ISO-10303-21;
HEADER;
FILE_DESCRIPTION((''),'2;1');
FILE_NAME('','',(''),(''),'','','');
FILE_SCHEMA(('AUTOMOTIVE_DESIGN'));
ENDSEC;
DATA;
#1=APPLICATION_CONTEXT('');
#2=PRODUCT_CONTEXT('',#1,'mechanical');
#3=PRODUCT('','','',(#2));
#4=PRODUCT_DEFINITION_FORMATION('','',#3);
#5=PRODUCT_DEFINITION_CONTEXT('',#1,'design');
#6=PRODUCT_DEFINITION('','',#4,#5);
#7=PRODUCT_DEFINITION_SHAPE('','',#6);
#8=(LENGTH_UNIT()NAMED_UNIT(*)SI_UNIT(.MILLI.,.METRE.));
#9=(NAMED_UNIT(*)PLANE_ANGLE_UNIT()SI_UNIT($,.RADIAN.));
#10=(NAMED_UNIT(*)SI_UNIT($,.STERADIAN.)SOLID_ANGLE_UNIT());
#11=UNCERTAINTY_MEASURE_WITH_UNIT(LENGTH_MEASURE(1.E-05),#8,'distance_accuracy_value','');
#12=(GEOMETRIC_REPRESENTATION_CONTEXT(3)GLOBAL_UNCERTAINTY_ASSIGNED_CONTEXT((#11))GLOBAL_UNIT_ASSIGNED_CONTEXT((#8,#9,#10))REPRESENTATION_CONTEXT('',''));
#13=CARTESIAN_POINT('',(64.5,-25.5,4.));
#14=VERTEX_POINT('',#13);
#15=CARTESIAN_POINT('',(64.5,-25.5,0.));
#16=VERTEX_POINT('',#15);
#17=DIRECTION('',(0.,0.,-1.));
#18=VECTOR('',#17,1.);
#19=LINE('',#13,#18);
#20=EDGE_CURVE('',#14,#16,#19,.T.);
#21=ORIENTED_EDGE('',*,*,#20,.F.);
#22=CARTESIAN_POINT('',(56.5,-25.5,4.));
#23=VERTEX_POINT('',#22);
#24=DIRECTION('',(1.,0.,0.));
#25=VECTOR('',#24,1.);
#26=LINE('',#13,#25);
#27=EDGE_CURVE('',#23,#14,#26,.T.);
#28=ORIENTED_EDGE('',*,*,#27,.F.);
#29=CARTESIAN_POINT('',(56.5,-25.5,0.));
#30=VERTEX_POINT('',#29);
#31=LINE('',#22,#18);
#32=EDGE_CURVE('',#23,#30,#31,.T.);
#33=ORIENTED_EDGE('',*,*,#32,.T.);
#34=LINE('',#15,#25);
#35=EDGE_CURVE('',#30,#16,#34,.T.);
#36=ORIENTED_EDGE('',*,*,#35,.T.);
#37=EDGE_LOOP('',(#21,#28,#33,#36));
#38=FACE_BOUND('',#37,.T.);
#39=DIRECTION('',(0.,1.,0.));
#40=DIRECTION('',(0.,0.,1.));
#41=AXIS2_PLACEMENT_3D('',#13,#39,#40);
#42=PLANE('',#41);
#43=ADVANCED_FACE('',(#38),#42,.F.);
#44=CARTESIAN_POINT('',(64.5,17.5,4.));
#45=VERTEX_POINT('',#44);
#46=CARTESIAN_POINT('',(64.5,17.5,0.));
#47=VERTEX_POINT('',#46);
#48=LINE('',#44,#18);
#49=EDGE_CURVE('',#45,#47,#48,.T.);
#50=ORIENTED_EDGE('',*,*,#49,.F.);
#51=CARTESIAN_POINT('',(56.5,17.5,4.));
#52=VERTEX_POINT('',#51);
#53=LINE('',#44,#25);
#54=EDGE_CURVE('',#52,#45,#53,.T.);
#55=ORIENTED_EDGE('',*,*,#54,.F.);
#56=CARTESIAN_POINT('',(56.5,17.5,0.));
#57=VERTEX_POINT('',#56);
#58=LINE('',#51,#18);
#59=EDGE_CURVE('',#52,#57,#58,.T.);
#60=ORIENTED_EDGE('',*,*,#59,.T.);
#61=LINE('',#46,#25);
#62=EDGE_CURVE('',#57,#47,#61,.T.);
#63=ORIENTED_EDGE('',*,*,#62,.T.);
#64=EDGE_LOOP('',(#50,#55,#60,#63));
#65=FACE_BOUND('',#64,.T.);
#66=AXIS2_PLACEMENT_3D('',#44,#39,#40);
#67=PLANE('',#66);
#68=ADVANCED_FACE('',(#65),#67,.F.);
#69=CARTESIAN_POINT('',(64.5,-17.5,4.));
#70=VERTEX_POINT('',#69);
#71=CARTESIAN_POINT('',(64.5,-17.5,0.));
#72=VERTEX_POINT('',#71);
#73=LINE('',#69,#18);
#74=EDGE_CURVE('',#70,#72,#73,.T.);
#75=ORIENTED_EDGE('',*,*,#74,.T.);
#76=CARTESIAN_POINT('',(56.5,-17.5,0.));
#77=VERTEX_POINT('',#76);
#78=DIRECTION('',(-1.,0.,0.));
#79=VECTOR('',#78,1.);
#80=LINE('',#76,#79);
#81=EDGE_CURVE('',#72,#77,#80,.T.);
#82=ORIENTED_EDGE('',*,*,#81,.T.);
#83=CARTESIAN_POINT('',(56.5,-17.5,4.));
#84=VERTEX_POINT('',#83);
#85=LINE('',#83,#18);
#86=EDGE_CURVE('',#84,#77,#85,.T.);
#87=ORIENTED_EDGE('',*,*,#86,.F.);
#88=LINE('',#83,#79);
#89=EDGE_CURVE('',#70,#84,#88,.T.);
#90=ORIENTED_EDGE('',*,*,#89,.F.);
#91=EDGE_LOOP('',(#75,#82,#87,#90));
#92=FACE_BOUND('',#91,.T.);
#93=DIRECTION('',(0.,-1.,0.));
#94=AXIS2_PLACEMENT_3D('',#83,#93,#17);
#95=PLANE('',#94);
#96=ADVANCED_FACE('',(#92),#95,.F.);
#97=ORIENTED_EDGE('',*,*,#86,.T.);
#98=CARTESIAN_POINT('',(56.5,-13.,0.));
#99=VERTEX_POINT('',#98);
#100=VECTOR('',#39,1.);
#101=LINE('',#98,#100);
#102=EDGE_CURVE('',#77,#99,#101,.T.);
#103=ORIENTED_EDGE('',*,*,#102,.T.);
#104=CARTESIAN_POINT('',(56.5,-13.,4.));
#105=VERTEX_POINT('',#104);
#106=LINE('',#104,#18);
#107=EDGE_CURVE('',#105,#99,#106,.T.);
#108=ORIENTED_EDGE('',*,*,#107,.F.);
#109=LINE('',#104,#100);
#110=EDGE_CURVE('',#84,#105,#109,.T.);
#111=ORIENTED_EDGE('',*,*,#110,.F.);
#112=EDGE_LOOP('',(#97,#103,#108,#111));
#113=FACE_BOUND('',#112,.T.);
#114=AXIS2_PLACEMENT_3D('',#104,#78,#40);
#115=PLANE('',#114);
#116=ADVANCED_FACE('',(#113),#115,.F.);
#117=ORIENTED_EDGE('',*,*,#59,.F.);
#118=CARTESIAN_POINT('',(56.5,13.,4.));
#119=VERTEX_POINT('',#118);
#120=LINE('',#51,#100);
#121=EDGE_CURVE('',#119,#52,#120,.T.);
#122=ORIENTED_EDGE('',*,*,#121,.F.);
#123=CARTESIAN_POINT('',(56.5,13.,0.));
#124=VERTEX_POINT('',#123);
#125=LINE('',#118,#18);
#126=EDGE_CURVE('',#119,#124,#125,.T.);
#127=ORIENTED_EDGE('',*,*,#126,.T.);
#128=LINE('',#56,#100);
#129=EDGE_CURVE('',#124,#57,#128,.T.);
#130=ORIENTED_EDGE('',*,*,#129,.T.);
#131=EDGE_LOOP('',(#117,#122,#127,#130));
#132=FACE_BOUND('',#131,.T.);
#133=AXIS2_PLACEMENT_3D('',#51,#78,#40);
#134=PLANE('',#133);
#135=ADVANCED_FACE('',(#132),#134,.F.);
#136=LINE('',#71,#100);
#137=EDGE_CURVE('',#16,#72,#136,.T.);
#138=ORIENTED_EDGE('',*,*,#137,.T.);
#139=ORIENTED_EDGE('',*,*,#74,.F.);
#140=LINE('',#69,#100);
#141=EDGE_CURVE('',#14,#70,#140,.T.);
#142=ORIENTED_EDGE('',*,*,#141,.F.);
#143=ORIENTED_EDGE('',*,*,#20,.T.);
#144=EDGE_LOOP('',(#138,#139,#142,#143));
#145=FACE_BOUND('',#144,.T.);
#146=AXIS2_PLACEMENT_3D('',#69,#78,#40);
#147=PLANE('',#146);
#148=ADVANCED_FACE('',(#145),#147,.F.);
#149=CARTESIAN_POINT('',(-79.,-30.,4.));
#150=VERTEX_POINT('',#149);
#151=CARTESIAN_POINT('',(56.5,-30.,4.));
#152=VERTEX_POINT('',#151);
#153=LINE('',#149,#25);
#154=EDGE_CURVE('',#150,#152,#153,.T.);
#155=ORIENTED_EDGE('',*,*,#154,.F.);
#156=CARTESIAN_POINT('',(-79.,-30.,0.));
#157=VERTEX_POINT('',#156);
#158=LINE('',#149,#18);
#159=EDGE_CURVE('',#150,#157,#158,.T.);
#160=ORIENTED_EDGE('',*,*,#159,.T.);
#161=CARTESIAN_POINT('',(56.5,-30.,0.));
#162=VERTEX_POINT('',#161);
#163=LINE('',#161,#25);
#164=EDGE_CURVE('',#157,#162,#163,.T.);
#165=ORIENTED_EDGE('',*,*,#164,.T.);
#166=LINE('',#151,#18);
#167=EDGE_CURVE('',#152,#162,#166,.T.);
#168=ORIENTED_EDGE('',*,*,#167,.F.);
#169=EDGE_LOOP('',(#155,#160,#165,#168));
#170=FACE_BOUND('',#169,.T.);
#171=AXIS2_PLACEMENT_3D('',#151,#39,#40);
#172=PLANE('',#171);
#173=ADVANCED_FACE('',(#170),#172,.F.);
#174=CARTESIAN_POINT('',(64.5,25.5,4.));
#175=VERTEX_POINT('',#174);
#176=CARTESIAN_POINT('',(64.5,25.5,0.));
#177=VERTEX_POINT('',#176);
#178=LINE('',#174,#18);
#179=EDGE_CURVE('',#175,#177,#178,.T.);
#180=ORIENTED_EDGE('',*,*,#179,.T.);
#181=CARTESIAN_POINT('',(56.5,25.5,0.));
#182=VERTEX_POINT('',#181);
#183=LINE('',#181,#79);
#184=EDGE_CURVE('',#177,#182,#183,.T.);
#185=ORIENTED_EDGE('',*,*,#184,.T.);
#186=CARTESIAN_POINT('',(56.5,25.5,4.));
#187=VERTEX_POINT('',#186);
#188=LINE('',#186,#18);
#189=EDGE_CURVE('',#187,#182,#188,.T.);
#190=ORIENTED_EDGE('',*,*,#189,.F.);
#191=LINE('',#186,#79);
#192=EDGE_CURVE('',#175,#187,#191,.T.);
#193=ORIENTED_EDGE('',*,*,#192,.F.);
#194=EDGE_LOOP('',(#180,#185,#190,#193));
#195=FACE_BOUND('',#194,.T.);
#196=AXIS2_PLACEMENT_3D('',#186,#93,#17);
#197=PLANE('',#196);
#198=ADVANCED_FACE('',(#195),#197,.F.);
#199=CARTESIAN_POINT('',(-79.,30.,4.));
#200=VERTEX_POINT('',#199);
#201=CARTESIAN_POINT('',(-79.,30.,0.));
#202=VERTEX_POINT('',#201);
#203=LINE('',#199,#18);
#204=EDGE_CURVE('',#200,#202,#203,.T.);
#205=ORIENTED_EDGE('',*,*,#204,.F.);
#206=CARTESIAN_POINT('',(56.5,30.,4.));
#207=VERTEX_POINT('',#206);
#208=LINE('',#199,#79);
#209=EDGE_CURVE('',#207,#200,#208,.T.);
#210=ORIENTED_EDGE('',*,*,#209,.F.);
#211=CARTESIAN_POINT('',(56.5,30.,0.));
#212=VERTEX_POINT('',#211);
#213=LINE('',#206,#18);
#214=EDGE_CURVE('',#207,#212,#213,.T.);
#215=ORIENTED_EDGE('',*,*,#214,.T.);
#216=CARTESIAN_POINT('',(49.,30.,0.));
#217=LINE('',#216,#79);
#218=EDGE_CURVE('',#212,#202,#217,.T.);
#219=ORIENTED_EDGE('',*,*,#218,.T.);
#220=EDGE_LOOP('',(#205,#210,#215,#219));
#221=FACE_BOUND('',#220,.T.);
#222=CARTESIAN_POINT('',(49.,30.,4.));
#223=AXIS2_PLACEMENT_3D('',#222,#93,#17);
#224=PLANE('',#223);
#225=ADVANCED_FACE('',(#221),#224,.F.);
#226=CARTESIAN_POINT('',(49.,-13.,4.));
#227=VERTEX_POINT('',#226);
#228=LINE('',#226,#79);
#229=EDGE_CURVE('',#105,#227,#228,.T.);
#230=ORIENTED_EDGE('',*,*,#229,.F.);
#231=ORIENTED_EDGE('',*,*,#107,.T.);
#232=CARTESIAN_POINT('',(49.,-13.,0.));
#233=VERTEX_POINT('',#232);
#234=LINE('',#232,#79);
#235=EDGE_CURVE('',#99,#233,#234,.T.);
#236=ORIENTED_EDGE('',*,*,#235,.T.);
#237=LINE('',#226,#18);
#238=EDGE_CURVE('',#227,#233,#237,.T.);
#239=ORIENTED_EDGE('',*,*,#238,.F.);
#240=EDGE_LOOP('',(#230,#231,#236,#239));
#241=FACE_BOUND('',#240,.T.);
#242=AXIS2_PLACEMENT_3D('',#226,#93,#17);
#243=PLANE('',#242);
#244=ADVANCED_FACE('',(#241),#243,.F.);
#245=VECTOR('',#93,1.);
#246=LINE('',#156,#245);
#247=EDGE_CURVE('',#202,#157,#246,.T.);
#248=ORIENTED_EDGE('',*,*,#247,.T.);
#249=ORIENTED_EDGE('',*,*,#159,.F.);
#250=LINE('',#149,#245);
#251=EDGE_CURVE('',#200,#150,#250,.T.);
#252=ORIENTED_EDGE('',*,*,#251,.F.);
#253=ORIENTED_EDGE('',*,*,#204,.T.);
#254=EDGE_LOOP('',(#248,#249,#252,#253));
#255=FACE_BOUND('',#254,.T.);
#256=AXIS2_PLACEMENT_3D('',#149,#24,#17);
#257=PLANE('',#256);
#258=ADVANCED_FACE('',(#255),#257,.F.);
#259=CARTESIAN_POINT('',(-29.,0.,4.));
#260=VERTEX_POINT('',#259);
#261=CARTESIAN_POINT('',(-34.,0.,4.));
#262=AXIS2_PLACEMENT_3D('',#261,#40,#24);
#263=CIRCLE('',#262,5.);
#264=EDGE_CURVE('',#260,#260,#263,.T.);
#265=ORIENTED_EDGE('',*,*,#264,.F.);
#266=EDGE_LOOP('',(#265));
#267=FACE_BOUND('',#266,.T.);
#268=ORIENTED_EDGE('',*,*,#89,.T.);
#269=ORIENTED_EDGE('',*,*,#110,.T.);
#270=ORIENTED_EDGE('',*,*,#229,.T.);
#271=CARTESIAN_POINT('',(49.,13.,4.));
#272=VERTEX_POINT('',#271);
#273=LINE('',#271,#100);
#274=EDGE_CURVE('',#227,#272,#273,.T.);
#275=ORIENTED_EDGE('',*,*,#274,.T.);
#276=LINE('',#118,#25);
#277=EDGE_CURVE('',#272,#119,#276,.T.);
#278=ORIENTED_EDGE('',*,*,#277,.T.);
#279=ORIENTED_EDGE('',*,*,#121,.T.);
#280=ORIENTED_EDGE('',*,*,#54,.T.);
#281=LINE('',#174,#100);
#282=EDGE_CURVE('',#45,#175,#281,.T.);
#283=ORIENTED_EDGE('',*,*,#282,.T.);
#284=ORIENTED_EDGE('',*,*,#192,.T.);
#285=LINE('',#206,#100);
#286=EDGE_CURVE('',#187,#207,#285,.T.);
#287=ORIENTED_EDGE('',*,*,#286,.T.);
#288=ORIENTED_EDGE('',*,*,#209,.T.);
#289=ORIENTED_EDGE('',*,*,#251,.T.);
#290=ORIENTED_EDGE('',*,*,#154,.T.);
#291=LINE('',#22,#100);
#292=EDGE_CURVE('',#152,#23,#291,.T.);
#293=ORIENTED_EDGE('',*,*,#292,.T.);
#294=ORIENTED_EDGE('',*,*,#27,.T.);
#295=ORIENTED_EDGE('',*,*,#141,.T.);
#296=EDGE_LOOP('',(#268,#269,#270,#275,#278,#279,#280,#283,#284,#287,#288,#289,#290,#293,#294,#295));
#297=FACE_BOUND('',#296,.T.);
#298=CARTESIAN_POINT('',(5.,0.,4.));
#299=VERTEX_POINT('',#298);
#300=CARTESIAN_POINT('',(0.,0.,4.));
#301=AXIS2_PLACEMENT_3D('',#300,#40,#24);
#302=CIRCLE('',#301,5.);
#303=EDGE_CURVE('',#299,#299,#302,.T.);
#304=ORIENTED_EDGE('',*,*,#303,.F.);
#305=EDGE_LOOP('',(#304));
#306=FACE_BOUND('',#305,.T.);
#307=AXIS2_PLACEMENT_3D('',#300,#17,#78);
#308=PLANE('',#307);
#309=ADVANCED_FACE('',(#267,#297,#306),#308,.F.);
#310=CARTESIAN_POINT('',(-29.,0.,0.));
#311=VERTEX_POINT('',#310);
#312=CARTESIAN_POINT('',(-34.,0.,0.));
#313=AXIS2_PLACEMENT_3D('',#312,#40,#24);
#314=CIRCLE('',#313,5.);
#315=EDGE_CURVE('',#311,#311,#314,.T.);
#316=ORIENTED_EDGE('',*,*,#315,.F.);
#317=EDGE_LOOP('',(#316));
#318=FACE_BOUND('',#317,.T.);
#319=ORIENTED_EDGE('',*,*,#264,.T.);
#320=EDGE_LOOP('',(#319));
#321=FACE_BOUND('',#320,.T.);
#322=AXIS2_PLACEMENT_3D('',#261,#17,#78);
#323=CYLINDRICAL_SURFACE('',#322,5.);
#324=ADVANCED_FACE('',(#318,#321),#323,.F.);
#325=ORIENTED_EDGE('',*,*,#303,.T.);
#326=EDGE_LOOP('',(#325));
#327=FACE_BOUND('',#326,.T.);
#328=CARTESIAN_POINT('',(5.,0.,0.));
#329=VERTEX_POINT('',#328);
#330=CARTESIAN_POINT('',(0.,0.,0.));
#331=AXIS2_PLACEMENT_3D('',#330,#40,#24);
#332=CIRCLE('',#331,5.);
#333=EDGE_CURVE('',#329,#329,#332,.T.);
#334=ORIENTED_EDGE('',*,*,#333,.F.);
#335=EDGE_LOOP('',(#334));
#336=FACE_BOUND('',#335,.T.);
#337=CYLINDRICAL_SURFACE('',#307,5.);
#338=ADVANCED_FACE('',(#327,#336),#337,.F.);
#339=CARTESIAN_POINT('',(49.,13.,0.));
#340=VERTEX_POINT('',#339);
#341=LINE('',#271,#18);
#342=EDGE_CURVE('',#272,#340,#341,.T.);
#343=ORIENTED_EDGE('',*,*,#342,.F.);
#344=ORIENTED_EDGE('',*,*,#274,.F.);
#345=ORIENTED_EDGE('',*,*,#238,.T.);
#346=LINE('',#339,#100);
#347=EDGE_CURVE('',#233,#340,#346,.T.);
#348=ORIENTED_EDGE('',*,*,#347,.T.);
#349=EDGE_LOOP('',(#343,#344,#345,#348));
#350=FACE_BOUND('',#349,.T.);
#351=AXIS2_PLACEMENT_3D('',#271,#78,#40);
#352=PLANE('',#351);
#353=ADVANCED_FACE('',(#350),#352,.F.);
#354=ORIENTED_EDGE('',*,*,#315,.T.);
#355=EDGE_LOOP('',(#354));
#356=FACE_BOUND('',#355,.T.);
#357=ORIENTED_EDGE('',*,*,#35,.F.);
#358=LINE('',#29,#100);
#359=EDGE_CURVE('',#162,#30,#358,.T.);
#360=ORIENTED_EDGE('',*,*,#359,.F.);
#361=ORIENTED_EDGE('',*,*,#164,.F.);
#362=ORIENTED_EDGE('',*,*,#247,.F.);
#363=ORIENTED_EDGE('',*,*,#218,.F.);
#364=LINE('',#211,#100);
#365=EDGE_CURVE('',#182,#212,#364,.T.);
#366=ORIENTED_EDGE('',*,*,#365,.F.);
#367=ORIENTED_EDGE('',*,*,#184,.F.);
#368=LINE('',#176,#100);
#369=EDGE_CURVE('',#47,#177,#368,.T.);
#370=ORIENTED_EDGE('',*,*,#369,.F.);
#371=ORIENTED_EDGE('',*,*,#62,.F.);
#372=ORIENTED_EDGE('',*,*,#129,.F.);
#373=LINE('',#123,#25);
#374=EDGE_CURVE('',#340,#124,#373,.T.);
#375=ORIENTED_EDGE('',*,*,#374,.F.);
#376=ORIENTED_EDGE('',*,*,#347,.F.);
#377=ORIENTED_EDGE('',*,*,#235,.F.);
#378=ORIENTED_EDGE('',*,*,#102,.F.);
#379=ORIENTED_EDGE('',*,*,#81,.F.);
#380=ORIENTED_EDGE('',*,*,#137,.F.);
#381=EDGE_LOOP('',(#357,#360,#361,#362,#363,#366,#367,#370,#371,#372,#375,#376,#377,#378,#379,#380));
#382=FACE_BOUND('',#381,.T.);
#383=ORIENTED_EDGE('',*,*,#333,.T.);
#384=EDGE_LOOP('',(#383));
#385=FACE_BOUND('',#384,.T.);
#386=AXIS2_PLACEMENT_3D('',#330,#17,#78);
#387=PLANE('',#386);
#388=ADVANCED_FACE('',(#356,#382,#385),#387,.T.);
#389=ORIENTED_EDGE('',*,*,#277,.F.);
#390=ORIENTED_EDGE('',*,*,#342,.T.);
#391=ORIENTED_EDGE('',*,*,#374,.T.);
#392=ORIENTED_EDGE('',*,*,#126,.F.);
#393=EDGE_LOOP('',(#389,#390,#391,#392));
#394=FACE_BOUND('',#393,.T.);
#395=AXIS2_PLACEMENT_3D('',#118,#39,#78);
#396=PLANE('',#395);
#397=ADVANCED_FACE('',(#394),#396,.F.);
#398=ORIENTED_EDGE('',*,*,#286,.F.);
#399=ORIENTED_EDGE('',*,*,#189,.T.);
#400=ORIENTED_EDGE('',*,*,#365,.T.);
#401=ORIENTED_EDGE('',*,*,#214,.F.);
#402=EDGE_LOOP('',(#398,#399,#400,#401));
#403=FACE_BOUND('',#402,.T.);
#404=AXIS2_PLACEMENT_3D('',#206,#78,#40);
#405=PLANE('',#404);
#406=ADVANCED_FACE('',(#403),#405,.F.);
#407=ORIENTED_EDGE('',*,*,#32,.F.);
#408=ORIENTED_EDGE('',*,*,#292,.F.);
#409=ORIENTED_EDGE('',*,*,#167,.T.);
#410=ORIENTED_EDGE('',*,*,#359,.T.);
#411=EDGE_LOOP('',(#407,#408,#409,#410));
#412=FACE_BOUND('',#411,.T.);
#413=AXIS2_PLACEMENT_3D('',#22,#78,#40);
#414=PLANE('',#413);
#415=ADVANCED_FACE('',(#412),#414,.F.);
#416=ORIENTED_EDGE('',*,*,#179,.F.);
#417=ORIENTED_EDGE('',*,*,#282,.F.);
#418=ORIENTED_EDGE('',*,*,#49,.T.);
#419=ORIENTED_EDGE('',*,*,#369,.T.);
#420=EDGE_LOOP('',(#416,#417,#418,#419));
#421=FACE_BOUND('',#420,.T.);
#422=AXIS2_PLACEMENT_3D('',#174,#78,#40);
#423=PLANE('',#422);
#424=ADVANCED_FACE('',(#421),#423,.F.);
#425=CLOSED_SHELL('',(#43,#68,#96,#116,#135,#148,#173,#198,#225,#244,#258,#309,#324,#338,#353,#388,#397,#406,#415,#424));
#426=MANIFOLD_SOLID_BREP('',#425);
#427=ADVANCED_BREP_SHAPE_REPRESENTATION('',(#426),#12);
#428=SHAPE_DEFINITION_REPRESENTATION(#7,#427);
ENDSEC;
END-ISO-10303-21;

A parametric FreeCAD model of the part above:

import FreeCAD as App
import Part
import Sketcher
from FreeCAD import Vector

doc = App.newDocument("Part")
body = doc.addObject("PartDesign::Body", "Body")

sketch1 = body.newObject("Sketcher::SketchObject", "Sketch")
sketch1.AttachmentSupport = (doc.getObject("XY_Plane"), [""])
sketch1.MapMode = "FlatFace"
sketch1.addGeometry([
    Part.LineSegment(Vector(56.5, 30, 0), Vector(-79, 30, 0)),
    Part.LineSegment(Vector(-79, 30, 0), Vector(-79, -30, 0)),
    Part.LineSegment(Vector(-79, -30, 0), Vector(56.5, -30, 0)),
    Part.LineSegment(Vector(56.5, -30, 0), Vector(56.5, -25.5, 0)),
    Part.LineSegment(Vector(56.5, -25.5, 0), Vector(64.5, -25.5, 0)),
    Part.LineSegment(Vector(64.5, -25.5, 0), Vector(64.5, -17.5, 0)),
    Part.LineSegment(Vector(64.5, -17.5, 0), Vector(56.5, -17.5, 0)),
    Part.LineSegment(Vector(56.5, -17.5, 0), Vector(56.5, -13, 0)),
    Part.LineSegment(Vector(56.5, -13, 0), Vector(49, -13, 0)),
    Part.LineSegment(Vector(49, -13, 0), Vector(49, 13, 0)),
    Part.LineSegment(Vector(49, 13, 0), Vector(56.5, 13, 0)),
    Part.LineSegment(Vector(56.5, 13, 0), Vector(56.5, 17.5, 0)),
    Part.LineSegment(Vector(56.5, 17.5, 0), Vector(64.5, 17.5, 0)),
    Part.LineSegment(Vector(64.5, 17.5, 0), Vector(64.5, 25.5, 0)),
    Part.LineSegment(Vector(64.5, 25.5, 0), Vector(56.5, 25.5, 0)),
    Part.LineSegment(Vector(56.5, 25.5, 0), Vector(56.5, 30, 0)),
    Part.Circle(Vector(0, 0, 0), Vector(0, 0, 1), 5),
    Part.Circle(Vector(-34, 0, 0), Vector(0, 0, 1), 5),
], False)
sketch1.addConstraint([
    Sketcher.Constraint("Coincident", 0, 2, 1, 1),
    Sketcher.Constraint("Coincident", 1, 2, 2, 1),
    Sketcher.Constraint("Coincident", 2, 2, 3, 1),
    Sketcher.Constraint("Coincident", 3, 2, 4, 1),
    Sketcher.Constraint("Coincident", 4, 2, 5, 1),
    Sketcher.Constraint("Coincident", 5, 2, 6, 1),
    Sketcher.Constraint("Coincident", 6, 2, 7, 1),
    Sketcher.Constraint("Coincident", 7, 2, 8, 1),
    Sketcher.Constraint("Coincident", 8, 2, 9, 1),
    Sketcher.Constraint("Coincident", 9, 2, 10, 1),
    Sketcher.Constraint("Coincident", 10, 2, 11, 1),
    Sketcher.Constraint("Coincident", 11, 2, 12, 1),
    Sketcher.Constraint("Coincident", 12, 2, 13, 1),
    Sketcher.Constraint("Coincident", 13, 2, 14, 1),
    Sketcher.Constraint("Coincident", 14, 2, 15, 1),
    Sketcher.Constraint("Coincident", 15, 2, 0, 1),
    Sketcher.Constraint("Horizontal", 0),
    Sketcher.Constraint("Vertical", 1),
    Sketcher.Constraint("Horizontal", 2),
    Sketcher.Constraint("Vertical", 3),
    Sketcher.Constraint("Horizontal", 4),
    Sketcher.Constraint("Vertical", 5),
    Sketcher.Constraint("Horizontal", 6),
    Sketcher.Constraint("Vertical", 7),
    Sketcher.Constraint("Horizontal", 8),
    Sketcher.Constraint("Vertical", 9),
    Sketcher.Constraint("Horizontal", 10),
    Sketcher.Constraint("Vertical", 11),
    Sketcher.Constraint("Horizontal", 12),
    Sketcher.Constraint("Vertical", 13),
    Sketcher.Constraint("Horizontal", 14),
    Sketcher.Constraint("Vertical", 15),
    Sketcher.Constraint("Coincident", 16, 3, -1, 1),
    Sketcher.Constraint("Equal", 16, 17),
    Sketcher.Constraint("Symmetric", 7, 2, 10, 2, -1),
    Sketcher.Constraint("Symmetric", 5, 2, 12, 2, -1),
    Sketcher.Constraint("Symmetric", 3, 2, 14, 2, -1),
    Sketcher.Constraint("PointOnObject", 17, 3, -1),
    Sketcher.Constraint("Vertical", 3, 2, 6, 2),
    Sketcher.Constraint("Equal", 14, 5),
    Sketcher.Constraint("Equal", 3, 7),
    Sketcher.Constraint("Equal", 11, 15),
    Sketcher.Constraint("Diameter", 16, 10.0),
    Sketcher.Constraint("DistanceX", 4, 1, 4, 2, 8.0),
    Sketcher.Constraint("DistanceY", 1, 2, 1, 1, 60.0),
    Sketcher.Constraint("DistanceY", 9, 1, 9, 2, 26.0),
    Sketcher.Constraint("DistanceX", 0, 2, 0, 1, 135.5),
    Sketcher.Constraint("DistanceX", 8, 2, 8, 1, 7.5),
    Sketcher.Constraint("DistanceX", 17, 3, -1, 1, 34.0),
    Sketcher.Constraint("DistanceX", 0, 2, -1, 1, 79.0),
])
pad1 = body.newObject("PartDesign::Pad", "Pad")
pad1.Profile = sketch1
pad1.Length = 4

doc.recompute()
